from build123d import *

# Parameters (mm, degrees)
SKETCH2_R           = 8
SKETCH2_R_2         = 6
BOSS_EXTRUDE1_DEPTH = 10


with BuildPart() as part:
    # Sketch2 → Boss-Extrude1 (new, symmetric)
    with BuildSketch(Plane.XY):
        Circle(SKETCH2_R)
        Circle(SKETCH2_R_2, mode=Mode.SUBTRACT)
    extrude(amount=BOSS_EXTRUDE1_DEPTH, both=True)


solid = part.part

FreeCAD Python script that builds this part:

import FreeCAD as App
import Part
import Sketcher
Q = App.Units.Quantity

doc = App.newDocument("Part")
params = doc.addObject("Spreadsheet::Sheet", "Params")
for row, (alias, value) in enumerate([
    ("sketch1_diameter", "16 mm"),
    ("sketch1_diameter2", "12 mm"),
    ("pad1_length", "20 mm"),
], start=1):
    params.set(f"A{row}", alias)
    params.set(f"B{row}", "=" + value)
    params.setAlias(f"B{row}", alias)

body = doc.addObject("PartDesign::Body", "Body")

sketch1 = body.newObject("Sketcher::SketchObject", "Sketch")
sketch1.AttachmentSupport = (doc.getObject("XY_Plane"), [""])
sketch1.MapMode = "FlatFace"
sketch1.addGeometry(Part.Circle(App.Vector(0, 0, 0), App.Vector(0, 0, 1), 8), False)
sketch1.addGeometry(Part.Circle(App.Vector(0, 0, 0), App.Vector(0, 0, 1), 6), False)
sketch1.addConstraint(Sketcher.Constraint("Coincident", 0, 3, -1, 1))
sketch1.addConstraint(Sketcher.Constraint("Coincident", 1, 3, -1, 1))
sketch1.addConstraint(Sketcher.Constraint("Diameter", 0, Q("16 mm")))
sketch1.addConstraint(Sketcher.Constraint("Diameter", 1, Q("12 mm")))
sketch1.setExpression("Constraints[2]", "Params.sketch1_diameter")
sketch1.setExpression("Constraints[3]", "Params.sketch1_diameter2")
pad1 = body.newObject("PartDesign::Pad", "Pad")
pad1.Profile = sketch1
pad1.setExpression("Length", "Params.pad1_length")
pad1.Midplane = True

doc.recompute()
